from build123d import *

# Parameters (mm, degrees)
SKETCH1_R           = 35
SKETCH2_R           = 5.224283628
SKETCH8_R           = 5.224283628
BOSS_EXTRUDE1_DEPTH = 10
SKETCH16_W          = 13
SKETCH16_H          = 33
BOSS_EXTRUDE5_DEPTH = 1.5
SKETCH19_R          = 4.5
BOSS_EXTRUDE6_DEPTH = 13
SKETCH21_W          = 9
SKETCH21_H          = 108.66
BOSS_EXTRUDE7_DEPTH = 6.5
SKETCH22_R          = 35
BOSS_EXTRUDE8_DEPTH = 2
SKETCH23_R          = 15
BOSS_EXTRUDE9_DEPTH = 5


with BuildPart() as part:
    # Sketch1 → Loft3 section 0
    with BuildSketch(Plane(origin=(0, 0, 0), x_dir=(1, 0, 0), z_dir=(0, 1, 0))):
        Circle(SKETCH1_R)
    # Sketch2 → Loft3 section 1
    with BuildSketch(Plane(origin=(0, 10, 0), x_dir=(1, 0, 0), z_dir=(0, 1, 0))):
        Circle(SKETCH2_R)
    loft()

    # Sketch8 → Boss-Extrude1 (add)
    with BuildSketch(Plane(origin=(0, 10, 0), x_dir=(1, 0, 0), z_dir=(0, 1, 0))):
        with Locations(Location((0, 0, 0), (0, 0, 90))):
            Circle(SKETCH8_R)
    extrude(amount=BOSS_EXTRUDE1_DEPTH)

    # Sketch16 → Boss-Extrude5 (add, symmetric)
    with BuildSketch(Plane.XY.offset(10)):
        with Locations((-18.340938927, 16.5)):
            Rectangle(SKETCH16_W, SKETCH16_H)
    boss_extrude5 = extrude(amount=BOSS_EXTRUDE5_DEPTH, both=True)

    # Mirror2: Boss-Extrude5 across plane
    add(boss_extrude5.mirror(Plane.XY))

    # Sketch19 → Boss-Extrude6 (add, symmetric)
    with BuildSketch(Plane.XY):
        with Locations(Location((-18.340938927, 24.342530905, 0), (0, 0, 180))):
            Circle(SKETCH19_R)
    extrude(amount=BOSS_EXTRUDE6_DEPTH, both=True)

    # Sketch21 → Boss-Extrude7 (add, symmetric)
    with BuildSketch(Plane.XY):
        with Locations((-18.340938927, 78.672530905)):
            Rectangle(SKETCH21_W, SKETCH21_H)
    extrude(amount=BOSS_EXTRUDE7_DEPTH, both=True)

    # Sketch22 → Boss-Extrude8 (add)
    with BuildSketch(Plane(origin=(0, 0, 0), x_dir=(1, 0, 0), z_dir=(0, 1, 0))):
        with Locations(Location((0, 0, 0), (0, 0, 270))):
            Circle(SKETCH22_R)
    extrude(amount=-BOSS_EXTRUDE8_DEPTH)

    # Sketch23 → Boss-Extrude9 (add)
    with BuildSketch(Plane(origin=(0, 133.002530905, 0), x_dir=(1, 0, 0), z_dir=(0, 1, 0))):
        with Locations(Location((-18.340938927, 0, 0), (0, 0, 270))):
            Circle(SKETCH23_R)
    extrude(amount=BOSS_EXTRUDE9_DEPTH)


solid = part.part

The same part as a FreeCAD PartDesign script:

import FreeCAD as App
import Part
import Sketcher

V = App.Vector
Q = App.Units.Quantity


def add_polygon(sketch, points):
    """Adds a closed chain of lines whose ends are joined by coincident constraints."""
    first, n = sketch.GeometryCount, len(points)
    for a, b in zip(points, points[1:] + points[:1]):
        sketch.addGeometry(Part.LineSegment(App.Vector(*a, 0), App.Vector(*b, 0)), False)
    for i in range(n):
        sketch.addConstraint(Sketcher.Constraint("Coincident", first + i, 2, first + (i + 1) % n, 1))

doc = App.newDocument("Part")
body = doc.addObject("PartDesign::Body", "Body")

# Sketch on XZ plane
sketch1 = body.newObject("Sketcher::SketchObject", "Sketch")
sketch1.AttachmentSupport = (doc.getObject("XZ_Plane"), [""])
sketch1.MapMode = "FlatFace"
sketch1.addGeometry(Part.Circle(V(0, 0, 0), V(0, 0, 1), 35), False)
sketch1.addConstraint([
    Sketcher.Constraint("Coincident", 0, 3, -1, 1),
    Sketcher.Constraint("Diameter", 0, Q("70 mm")),
])

# Sketch on XZ plane
sketch2 = body.newObject("Sketcher::SketchObject", "Sketch001")
sketch2.AttachmentSupport = (doc.getObject("XZ_Plane"), [""])
sketch2.MapMode = "FlatFace"
sketch2.AttachmentOffset = App.Placement(V(0, 0, -10), App.Rotation())
sketch2.addGeometry(Part.Circle(V(0, 0, 0), V(0, 0, 1), 5.224284), False)
sketch2.addConstraint([
    Sketcher.Constraint("Coincident", 0, 3, -1, 1),
    Sketcher.Constraint("Diameter", 0, Q("10.448567 mm")),
])

additiveloft = body.newObject("PartDesign::AdditiveLoft", "AdditiveLoft")
additiveloft.Profile = sketch1
additiveloft.Sections = [sketch2]

# Sketch on XZ plane
sketch3 = body.newObject("Sketcher::SketchObject", "Sketch002")
sketch3.AttachmentSupport = (doc.getObject("XZ_Plane"), [""])
sketch3.MapMode = "FlatFace"
sketch3.AttachmentOffset = App.Placement(V(0, 0, -10), App.Rotation())
sketch3.addGeometry(Part.Circle(V(0, 0, 0), V(0, 0, 1), 5.224284), False)
sketch3.addConstraint([
    Sketcher.Constraint("Coincident", 0, 3, -1, 1),
    Sketcher.Constraint("Diameter", 0, Q("10.448567 mm")),
])
pad1 = body.newObject("PartDesign::Pad", "Pad")
pad1.Profile = sketch3
pad1.Length = 10
pad1.Reversed = True

# Sketch on XY plane
sketch4 = body.newObject("Sketcher::SketchObject", "Sketch003")
sketch4.AttachmentSupport = (doc.getObject("XY_Plane"), [""])
sketch4.MapMode = "FlatFace"
sketch4.AttachmentOffset = App.Placement(V(0, 0, 10), App.Rotation())
add_polygon(sketch4, [(-24.840939, 33), (-24.840939, 0), (-11.840939, 0), (-11.840939, 33)])  # lines 0-3
sketch4.addConstraint([
    Sketcher.Constraint("Vertical", 0),
    Sketcher.Constraint("Horizontal", 1),
    Sketcher.Constraint("Vertical", 2),
    Sketcher.Constraint("Horizontal", 3),
    Sketcher.Constraint("PointOnObject", 0, 2, -1),
    Sketcher.Constraint("DistanceX", 1, 1, 1, 2, Q("13 mm")),
    Sketcher.Constraint("DistanceY", 0, 2, 0, 1, Q("33 mm")),
    Sketcher.Constraint("DistanceX", 0, 2, -1, 1, Q("24.840939 mm")),
])
pad2 = body.newObject("PartDesign::Pad", "Pad001")
pad2.Profile = sketch4
pad2.Length = 3
pad2.Midplane = True
doc.recompute()

mirrored = body.newObject("PartDesign::Mirrored", "Mirrored")
mirrored.Originals = [pad2]
mirrored.MirrorPlane = (doc.getObject("XY_Plane"), [""])
body.Tip = mirrored

# Sketch on XY plane
sketch5 = body.newObject("Sketcher::SketchObject", "Sketch004")
sketch5.AttachmentSupport = (doc.getObject("XY_Plane"), [""])
sketch5.MapMode = "FlatFace"
sketch5.addGeometry(Part.Circle(V(-18.340939, 24.342531, 0), V(0, 0, 1), 4.5), False)
sketch5.addConstraint([
    Sketcher.Constraint("Diameter", 0, Q("9 mm")),
    Sketcher.Constraint("DistanceX", 0, 3, -1, 1, Q("18.340939 mm")),
    Sketcher.Constraint("DistanceY", -1, 1, 0, 3, Q("24.342531 mm")),
])
pad3 = body.newObject("PartDesign::Pad", "Pad002")
pad3.Profile = sketch5
pad3.Length = 26
pad3.Midplane = True

# Sketch on XY plane
sketch6 = body.newObject("Sketcher::SketchObject", "Sketch005")
sketch6.AttachmentSupport = (doc.getObject("XY_Plane"), [""])
sketch6.MapMode = "FlatFace"
add_polygon(sketch6, [(-22.840939, 133.002531), (-22.840939, 24.342531), (-13.840939, 24.342531), (-13.840939, 133.002531)])  # lines 0-3
sketch6.addConstraint([
    Sketcher.Constraint("Vertical", 0),
    Sketcher.Constraint("Horizontal", 1),
    Sketcher.Constraint("Vertical", 2),
    Sketcher.Constraint("Horizontal", 3),
    Sketcher.Constraint("DistanceX", 1, 1, 1, 2, Q("9 mm")),
    Sketcher.Constraint("DistanceY", 0, 2, 0, 1, Q("108.66 mm")),
    Sketcher.Constraint("DistanceX", 0, 2, -1, 1, Q("22.840939 mm")),
    Sketcher.Constraint("DistanceY", -1, 1, 0, 2, Q("24.342531 mm")),
])
pad4 = body.newObject("PartDesign::Pad", "Pad003")
pad4.Profile = sketch6
pad4.Length = 13
pad4.Midplane = True

# Sketch on XZ plane
sketch7 = body.newObject("Sketcher::SketchObject", "Sketch006")
sketch7.AttachmentSupport = (doc.getObject("XZ_Plane"), [""])
sketch7.MapMode = "FlatFace"
sketch7.addGeometry(Part.Circle(V(0, 0, 0), V(0, 0, 1), 35), False)
sketch7.addConstraint([
    Sketcher.Constraint("Coincident", 0, 3, -1, 1),
    Sketcher.Constraint("Diameter", 0, Q("70 mm")),
])
pad5 = body.newObject("PartDesign::Pad", "Pad004")
pad5.Profile = sketch7
pad5.Length = 2

# Sketch on XZ plane
sketch8 = body.newObject("Sketcher::SketchObject", "Sketch007")
sketch8.AttachmentSupport = (doc.getObject("XZ_Plane"), [""])
sketch8.MapMode = "FlatFace"
sketch8.AttachmentOffset = App.Placement(V(0, 0, -133.002531), App.Rotation())
sketch8.addGeometry(Part.Circle(V(-18.340939, 0, 0), V(0, 0, 1), 15), False)
sketch8.addConstraint([
    Sketcher.Constraint("PointOnObject", 0, 3, -1),
    Sketcher.Constraint("Diameter", 0, Q("30 mm")),
    Sketcher.Constraint("DistanceX", 0, 3, -1, 1, Q("18.340939 mm")),
])
pad6 = body.newObject("PartDesign::Pad", "Pad005")
pad6.Profile = sketch8
pad6.Length = 5
pad6.Reversed = True

doc.recompute()
